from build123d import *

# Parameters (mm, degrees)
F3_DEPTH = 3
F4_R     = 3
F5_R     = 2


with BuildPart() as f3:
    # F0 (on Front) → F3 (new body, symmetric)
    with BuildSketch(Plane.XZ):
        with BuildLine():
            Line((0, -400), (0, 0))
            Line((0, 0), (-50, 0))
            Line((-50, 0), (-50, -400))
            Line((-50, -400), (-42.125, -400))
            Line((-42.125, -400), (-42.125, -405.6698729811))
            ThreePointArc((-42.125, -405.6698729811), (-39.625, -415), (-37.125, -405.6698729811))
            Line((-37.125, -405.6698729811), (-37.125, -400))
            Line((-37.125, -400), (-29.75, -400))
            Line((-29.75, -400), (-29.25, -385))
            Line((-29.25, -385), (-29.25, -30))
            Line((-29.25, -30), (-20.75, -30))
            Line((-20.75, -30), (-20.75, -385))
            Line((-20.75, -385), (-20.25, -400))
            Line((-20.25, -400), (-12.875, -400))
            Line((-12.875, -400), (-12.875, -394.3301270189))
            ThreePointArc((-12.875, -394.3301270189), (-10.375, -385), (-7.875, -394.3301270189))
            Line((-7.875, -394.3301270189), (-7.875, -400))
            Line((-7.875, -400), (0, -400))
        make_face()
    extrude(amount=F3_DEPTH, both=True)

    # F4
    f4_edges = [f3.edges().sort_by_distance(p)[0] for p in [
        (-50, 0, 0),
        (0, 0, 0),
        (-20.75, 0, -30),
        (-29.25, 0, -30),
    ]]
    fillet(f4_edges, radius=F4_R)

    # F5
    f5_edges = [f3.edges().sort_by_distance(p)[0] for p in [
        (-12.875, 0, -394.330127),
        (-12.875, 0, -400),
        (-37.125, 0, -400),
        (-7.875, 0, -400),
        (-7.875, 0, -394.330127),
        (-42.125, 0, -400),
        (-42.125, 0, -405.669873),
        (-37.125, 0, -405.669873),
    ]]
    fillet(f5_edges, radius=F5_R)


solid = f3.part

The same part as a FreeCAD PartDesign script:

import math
import FreeCAD as App
import Part
import Sketcher
Q = App.Units.Quantity


def edges_at(feature, points):
    """Names of the edges that pass closest to the given points."""
    edges = feature.Shape.Edges
    near = lambda p: min(range(len(edges)), key=lambda i: edges[i].distToShape(Part.Vertex(*p))[0])
    return sorted({f"Edge{near(p) + 1}" for p in points})

doc = App.newDocument("Part")
body = doc.addObject("PartDesign::Body", "Body")

# Sketch on XZ plane
sketch1 = body.newObject("Sketcher::SketchObject", "Sketch")
sketch1.AttachmentSupport = (doc.getObject("XZ_Plane"), [""])
sketch1.MapMode = "FlatFace"
sketch1.addGeometry(Part.LineSegment(App.Vector(0, -400, 0), App.Vector(0, 0, 0)), False)
sketch1.addGeometry(Part.LineSegment(App.Vector(0, 0, 0), App.Vector(-50, 0, 0)), False)
sketch1.addGeometry(Part.LineSegment(App.Vector(-50, 0, 0), App.Vector(-50, -400, 0)), False)
sketch1.addGeometry(Part.LineSegment(App.Vector(-50, -400, 0), App.Vector(-42.125, -400, 0)), False)
sketch1.addGeometry(Part.LineSegment(App.Vector(-42.125, -400, 0), App.Vector(-42.125, -405.669873, 0)), False)
sketch1.addGeometry(Part.ArcOfCircle(Part.Circle(App.Vector(-39.625, -410, 0), App.Vector(0, 0, 1), 5), math.radians(120), math.radians(420)), False)
sketch1.addGeometry(Part.LineSegment(App.Vector(-37.125, -405.669873, 0), App.Vector(-37.125, -400, 0)), False)
sketch1.addGeometry(Part.LineSegment(App.Vector(-37.125, -400, 0), App.Vector(-29.75, -400, 0)), False)
sketch1.addGeometry(Part.LineSegment(App.Vector(-29.75, -400, 0), App.Vector(-29.25, -385, 0)), False)
sketch1.addGeometry(Part.LineSegment(App.Vector(-29.25, -385, 0), App.Vector(-29.25, -30, 0)), False)
sketch1.addGeometry(Part.LineSegment(App.Vector(-29.25, -30, 0), App.Vector(-20.75, -30, 0)), False)
sketch1.addGeometry(Part.LineSegment(App.Vector(-20.75, -30, 0), App.Vector(-20.75, -385, 0)), False)
sketch1.addGeometry(Part.LineSegment(App.Vector(-20.75, -385, 0), App.Vector(-20.25, -400, 0)), False)
sketch1.addGeometry(Part.LineSegment(App.Vector(-20.25, -400, 0), App.Vector(-12.875, -400, 0)), False)
sketch1.addGeometry(Part.LineSegment(App.Vector(-12.875, -400, 0), App.Vector(-12.875, -394.330127, 0)), False)
sketch1.addGeometry(Part.ArcOfCircle(Part.Circle(App.Vector(-10.375, -390, 0), App.Vector(0, 0, 1), 5), math.radians(-60), math.radians(240)), False)
sketch1.addGeometry(Part.LineSegment(App.Vector(-7.875, -394.330127, 0), App.Vector(-7.875, -400, 0)), False)
sketch1.addGeometry(Part.LineSegment(App.Vector(-7.875, -400, 0), App.Vector(0, -400, 0)), False)
sketch1.addConstraint(Sketcher.Constraint("Coincident", 0, 2, 1, 1))
sketch1.addConstraint(Sketcher.Constraint("Coincident", 1, 2, 2, 1))
sketch1.addConstraint(Sketcher.Constraint("Coincident", 2, 2, 3, 1))
sketch1.addConstraint(Sketcher.Constraint("Coincident", 3, 2, 4, 1))
sketch1.addConstraint(Sketcher.Constraint("Coincident", 4, 2, 5, 1))
sketch1.addConstraint(Sketcher.Constraint("Coincident", 5, 2, 6, 1))
sketch1.addConstraint(Sketcher.Constraint("Coincident", 6, 2, 7, 1))
sketch1.addConstraint(Sketcher.Constraint("Coincident", 7, 2, 8, 1))
sketch1.addConstraint(Sketcher.Constraint("Coincident", 8, 2, 9, 1))
sketch1.addConstraint(Sketcher.Constraint("Coincident", 9, 2, 10, 1))
sketch1.addConstraint(Sketcher.Constraint("Coincident", 10, 2, 11, 1))
sketch1.addConstraint(Sketcher.Constraint("Coincident", 11, 2, 12, 1))
sketch1.addConstraint(Sketcher.Constraint("Coincident", 12, 2, 13, 1))
sketch1.addConstraint(Sketcher.Constraint("Coincident", 13, 2, 14, 1))
sketch1.addConstraint(Sketcher.Constraint("Coincident", 14, 2, 15, 2))
sketch1.addConstraint(Sketcher.Constraint("Coincident", 15, 1, 16, 1))
sketch1.addConstraint(Sketcher.Constraint("Coincident", 16, 2, 17, 1))
sketch1.addConstraint(Sketcher.Constraint("Coincident", 17, 2, 0, 1))
sketch1.addConstraint(Sketcher.Constraint("Vertical", 0))
sketch1.addConstraint(Sketcher.Constraint("Horizontal", 1))
sketch1.addConstraint(Sketcher.Constraint("Vertical", 2))
sketch1.addConstraint(Sketcher.Constraint("Horizontal", 3))
sketch1.addConstraint(Sketcher.Constraint("Vertical", 4))
sketch1.addConstraint(Sketcher.Constraint("Vertical", 6))
sketch1.addConstraint(Sketcher.Constraint("Horizontal", 7))
sketch1.addConstraint(Sketcher.Constraint("Vertical", 9))
sketch1.addConstraint(Sketcher.Constraint("Horizontal", 10))
sketch1.addConstraint(Sketcher.Constraint("Vertical", 11))
sketch1.addConstraint(Sketcher.Constraint("Horizontal", 13))
sketch1.addConstraint(Sketcher.Constraint("Vertical", 14))
sketch1.addConstraint(Sketcher.Constraint("Vertical", 16))
sketch1.addConstraint(Sketcher.Constraint("Horizontal", 17))
sketch1.addConstraint(Sketcher.Constraint("Coincident", 0, 2, -1, 1))
sketch1.addConstraint(Sketcher.Constraint("Equal", 5, 15))
sketch1.addConstraint(Sketcher.Constraint("Horizontal", 4, 2, 5, 2))
sketch1.addConstraint(Sketcher.Constraint("Horizontal", 3, 2, 6, 2))
sketch1.addConstraint(Sketcher.Constraint("Horizontal", 8, 2, 11, 2))
sketch1.addConstraint(Sketcher.Constraint("Horizontal", 7, 2, 12, 2))
sketch1.addConstraint(Sketcher.Constraint("Horizontal", 14, 2, 15, 1))
sketch1.addConstraint(Sketcher.Constraint("Horizontal", 13, 2, 16, 2))
sketch1.addConstraint(Sketcher.Constraint("Equal", 7, 13))
sketch1.addConstraint(Sketcher.Constraint("Equal", 3, 17))
sketch1.addConstraint(Sketcher.Constraint("Equal", 6, 14))
sketch1.addConstraint(Sketcher.Constraint("Equal", 8, 12))
sketch1.addConstraint(Sketcher.Constraint("Radius", 5, Q("5 mm")))
sketch1.addConstraint(Sketcher.Constraint("DistanceX", 1, 2, 1, 1, Q("50 mm")))
sketch1.addConstraint(Sketcher.Constraint("DistanceY", 0, 1, 0, 2, Q("400 mm")))
sketch1.addConstraint(Sketcher.Constraint("DistanceY", 9, 1, 9, 2, Q("355 mm")))
sketch1.addConstraint(Sketcher.Constraint("DistanceX", 10, 1, 10, 2, Q("8.5 mm")))
sketch1.addConstraint(Sketcher.Constraint("DistanceY", 5, 3, -1, 1, Q("410 mm")))
sketch1.addConstraint(Sketcher.Constraint("DistanceY", 15, 3, -1, 1, Q("390 mm")))
sketch1.addConstraint(Sketcher.Constraint("DistanceY", 8, 2, -1, 1, Q("385 mm")))
sketch1.addConstraint(Sketcher.Constraint("DistanceX", 4, 2, 5, 2, Q("5 mm")))
sketch1.addConstraint(Sketcher.Constraint("DistanceX", 7, 2, 11, 2, Q("9 mm")))
sketch1.addConstraint(Sketcher.Constraint("DistanceX", 3, 1, 3, 2, Q("7.875 mm")))
pad1 = body.newObject("PartDesign::Pad", "Pad")
pad1.Profile = sketch1
pad1.Length = 6
pad1.Midplane = True
doc.recompute()

fillet = body.newObject("PartDesign::Fillet", "Fillet")
fillet.Base = (pad1, edges_at(pad1, [
    (-50, 0, 0),
    (0, 0, 0),
    (-20.75, 0, -30),
    (-29.25, 0, -30),
]))
fillet.Radius = 3
doc.recompute()

fillet2 = body.newObject("PartDesign::Fillet", "Fillet001")
fillet2.Base = (fillet, edges_at(fillet, [
    (-12.875, 0, -394.33),
    (-12.875, 0, -400),
    (-37.125, 0, -400),
    (-7.875, 0, -400),
    (-7.875, 0, -394.33),
    (-42.125, 0, -400),
    (-42.125, 0, -405.67),
    (-37.125, 0, -405.67),
]))
fillet2.Radius = 2

doc.recompute()
